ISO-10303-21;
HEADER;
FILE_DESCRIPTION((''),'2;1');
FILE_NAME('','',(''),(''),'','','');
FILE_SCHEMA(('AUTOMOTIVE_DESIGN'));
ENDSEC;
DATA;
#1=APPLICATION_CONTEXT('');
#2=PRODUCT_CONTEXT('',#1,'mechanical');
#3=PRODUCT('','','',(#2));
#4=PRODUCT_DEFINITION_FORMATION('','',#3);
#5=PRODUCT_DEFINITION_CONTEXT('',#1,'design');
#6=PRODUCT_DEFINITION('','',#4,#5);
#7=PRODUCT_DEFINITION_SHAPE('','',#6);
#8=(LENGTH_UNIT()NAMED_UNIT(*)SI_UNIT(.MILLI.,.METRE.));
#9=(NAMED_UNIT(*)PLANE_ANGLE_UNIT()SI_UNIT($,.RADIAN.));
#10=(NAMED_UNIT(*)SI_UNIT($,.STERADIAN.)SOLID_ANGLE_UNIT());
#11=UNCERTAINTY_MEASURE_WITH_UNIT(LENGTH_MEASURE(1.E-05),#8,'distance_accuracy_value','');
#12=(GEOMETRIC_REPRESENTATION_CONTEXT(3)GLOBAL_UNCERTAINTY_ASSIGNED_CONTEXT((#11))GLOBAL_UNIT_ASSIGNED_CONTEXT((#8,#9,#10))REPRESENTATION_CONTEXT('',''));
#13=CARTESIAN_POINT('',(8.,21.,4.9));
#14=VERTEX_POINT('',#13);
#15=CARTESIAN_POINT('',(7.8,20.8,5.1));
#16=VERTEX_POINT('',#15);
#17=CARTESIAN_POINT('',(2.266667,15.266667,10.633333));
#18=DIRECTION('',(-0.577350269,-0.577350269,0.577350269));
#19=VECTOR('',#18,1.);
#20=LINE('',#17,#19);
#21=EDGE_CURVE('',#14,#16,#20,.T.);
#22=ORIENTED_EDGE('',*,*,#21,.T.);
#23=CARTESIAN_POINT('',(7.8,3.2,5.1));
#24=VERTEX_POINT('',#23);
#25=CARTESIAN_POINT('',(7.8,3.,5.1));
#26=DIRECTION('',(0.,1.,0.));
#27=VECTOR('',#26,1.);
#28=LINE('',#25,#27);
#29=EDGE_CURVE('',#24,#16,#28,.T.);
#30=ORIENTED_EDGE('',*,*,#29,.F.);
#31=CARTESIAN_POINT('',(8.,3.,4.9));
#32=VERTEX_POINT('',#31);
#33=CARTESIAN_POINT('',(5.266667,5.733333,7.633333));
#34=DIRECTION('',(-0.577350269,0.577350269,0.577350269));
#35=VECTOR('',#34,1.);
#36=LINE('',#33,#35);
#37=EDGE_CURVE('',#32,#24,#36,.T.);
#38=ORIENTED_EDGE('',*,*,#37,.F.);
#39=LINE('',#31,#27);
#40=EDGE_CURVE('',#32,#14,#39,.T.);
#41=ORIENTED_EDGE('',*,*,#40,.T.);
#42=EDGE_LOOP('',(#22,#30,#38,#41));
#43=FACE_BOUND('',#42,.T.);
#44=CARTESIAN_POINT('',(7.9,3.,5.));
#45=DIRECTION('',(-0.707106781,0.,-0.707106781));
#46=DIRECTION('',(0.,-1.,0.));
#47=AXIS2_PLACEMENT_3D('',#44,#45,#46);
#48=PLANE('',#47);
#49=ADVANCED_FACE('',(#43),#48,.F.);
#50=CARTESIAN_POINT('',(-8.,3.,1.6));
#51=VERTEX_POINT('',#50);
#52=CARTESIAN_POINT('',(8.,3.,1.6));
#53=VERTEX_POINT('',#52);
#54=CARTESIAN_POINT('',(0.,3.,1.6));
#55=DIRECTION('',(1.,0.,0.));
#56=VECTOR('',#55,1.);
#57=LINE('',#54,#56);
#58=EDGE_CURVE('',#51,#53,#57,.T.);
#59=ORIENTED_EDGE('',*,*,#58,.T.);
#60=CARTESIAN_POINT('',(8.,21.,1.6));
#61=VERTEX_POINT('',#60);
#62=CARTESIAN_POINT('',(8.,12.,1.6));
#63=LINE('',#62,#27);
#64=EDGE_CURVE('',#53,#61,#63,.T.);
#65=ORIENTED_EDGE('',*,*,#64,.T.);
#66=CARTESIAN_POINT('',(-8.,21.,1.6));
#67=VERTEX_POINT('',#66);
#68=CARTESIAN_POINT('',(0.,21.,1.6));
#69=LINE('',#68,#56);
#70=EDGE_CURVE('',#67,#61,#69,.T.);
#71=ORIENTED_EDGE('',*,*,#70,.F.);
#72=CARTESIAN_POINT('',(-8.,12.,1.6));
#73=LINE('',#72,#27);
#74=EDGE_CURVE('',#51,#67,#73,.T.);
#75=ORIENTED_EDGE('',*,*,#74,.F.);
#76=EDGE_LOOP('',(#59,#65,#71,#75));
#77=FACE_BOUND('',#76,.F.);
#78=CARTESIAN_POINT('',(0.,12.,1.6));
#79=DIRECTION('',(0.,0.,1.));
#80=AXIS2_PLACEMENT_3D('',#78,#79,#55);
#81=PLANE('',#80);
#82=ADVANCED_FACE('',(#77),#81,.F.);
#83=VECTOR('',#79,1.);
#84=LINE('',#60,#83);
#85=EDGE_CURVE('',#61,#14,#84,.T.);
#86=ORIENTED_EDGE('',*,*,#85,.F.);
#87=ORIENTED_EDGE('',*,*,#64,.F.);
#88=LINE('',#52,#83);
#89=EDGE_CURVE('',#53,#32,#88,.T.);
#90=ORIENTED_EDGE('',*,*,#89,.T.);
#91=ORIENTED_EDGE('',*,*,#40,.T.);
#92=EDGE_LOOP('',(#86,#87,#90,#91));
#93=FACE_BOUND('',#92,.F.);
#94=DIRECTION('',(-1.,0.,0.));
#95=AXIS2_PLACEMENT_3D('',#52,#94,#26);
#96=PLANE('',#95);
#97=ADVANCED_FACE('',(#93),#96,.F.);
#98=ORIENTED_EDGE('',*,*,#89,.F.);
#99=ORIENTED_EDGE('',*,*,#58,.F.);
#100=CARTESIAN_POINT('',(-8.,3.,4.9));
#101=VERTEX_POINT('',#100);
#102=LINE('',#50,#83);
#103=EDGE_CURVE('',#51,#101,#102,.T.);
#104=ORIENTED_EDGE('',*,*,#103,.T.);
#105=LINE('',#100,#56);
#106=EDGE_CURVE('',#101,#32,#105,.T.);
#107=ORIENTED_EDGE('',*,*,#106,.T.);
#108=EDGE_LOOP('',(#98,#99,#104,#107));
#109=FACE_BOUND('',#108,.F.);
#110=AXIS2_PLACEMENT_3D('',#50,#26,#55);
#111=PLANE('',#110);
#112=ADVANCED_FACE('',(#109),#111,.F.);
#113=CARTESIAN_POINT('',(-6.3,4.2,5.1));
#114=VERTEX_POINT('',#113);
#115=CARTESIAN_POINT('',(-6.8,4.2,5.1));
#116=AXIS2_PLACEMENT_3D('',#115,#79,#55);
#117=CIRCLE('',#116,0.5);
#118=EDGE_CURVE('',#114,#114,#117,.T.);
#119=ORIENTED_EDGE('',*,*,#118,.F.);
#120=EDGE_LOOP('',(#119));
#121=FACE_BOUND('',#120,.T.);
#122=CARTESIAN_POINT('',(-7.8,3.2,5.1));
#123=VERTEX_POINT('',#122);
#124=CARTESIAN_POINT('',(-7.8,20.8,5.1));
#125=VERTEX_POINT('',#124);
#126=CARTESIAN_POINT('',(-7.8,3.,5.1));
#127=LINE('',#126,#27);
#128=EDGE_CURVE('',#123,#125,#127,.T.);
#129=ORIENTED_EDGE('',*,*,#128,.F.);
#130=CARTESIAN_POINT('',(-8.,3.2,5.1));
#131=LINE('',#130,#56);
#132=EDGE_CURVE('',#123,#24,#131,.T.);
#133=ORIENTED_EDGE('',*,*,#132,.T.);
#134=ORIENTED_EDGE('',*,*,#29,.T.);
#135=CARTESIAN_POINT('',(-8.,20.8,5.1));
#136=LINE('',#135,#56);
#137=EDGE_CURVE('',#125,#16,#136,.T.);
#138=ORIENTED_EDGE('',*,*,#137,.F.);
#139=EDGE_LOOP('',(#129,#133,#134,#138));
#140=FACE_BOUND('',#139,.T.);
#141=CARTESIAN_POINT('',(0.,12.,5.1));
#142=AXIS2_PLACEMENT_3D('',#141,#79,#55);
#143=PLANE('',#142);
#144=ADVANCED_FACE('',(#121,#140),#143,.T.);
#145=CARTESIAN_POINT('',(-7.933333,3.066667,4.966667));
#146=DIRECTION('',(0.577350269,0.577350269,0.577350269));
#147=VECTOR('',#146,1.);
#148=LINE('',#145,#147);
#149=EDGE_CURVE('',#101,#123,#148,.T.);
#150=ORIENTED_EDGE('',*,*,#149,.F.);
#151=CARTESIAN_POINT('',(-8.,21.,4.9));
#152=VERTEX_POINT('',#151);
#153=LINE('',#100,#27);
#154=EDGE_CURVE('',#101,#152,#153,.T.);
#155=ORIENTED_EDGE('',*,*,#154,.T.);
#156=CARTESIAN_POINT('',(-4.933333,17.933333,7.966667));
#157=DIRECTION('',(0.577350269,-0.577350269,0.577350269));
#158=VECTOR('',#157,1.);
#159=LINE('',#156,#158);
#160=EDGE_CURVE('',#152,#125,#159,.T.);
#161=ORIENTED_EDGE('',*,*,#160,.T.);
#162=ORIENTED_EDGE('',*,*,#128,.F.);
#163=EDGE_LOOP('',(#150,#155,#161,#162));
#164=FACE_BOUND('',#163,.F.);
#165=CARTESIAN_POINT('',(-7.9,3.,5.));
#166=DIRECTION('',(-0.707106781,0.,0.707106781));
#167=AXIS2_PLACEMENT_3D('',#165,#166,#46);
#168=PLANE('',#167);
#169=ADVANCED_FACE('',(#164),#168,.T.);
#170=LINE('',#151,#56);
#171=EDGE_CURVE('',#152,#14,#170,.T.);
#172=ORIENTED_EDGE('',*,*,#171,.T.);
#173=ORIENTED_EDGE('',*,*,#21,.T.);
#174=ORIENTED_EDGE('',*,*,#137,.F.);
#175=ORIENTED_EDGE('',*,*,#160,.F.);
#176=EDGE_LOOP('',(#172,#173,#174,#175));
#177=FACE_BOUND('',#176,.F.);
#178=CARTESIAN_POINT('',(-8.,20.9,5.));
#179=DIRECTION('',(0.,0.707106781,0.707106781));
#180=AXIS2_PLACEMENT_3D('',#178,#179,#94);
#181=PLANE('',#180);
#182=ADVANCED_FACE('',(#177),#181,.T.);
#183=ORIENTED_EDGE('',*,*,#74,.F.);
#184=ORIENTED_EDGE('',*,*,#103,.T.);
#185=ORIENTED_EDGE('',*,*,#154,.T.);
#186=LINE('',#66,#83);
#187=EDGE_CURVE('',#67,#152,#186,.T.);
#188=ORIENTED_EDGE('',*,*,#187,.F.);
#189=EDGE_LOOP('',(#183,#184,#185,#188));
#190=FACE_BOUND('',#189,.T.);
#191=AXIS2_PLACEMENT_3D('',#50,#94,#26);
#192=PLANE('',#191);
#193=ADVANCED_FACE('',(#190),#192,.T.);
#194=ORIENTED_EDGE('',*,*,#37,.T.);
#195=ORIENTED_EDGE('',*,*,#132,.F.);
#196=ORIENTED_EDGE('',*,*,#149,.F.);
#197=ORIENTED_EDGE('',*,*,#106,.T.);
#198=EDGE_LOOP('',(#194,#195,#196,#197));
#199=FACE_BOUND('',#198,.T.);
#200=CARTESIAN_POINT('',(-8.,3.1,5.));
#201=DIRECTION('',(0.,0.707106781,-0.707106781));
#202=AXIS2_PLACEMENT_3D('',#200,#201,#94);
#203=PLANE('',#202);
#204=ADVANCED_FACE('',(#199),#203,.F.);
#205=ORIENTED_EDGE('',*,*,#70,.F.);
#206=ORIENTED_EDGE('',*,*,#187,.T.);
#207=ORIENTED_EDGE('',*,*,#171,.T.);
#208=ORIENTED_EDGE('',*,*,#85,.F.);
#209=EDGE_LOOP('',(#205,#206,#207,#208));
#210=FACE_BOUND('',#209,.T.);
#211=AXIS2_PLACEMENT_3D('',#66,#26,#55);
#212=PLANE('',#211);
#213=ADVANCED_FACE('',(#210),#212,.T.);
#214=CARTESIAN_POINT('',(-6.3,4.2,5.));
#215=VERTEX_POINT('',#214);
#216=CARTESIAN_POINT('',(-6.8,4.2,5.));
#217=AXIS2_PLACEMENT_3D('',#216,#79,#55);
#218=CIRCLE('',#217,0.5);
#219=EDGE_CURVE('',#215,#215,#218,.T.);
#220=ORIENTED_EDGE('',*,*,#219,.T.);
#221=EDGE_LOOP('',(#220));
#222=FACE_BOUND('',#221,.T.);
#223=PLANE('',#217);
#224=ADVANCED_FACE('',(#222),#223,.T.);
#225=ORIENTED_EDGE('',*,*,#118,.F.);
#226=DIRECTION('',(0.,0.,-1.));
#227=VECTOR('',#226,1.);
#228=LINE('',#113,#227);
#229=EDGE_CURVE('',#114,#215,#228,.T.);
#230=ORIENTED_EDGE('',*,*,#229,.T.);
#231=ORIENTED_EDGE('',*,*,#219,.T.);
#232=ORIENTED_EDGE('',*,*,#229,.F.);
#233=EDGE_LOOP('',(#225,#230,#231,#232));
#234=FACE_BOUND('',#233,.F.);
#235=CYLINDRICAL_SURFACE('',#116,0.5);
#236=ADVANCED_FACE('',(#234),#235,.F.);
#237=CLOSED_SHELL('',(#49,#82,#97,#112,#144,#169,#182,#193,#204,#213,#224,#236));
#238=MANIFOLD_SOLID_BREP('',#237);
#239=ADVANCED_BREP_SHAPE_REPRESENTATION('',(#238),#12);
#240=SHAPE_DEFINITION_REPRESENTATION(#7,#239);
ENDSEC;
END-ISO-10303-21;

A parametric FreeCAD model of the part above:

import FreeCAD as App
import Part
import Sketcher

V = App.Vector


def edges_at(feature, points):
    """Names of the edges that pass closest to the given points."""
    edges = feature.Shape.Edges
    near = lambda p: min(range(len(edges)), key=lambda i: edges[i].distToShape(Part.Vertex(*p))[0])
    return sorted({f"Edge{near(p) + 1}" for p in points})

doc = App.newDocument("Part")
body = doc.addObject("PartDesign::Body", "Body")

# Sketch on XY plane
sketch1 = body.newObject("Sketcher::SketchObject", "Sketch")
sketch1.AttachmentSupport = (doc.getObject("XY_Plane"), [""])
sketch1.MapMode = "FlatFace"
sketch1.AttachmentOffset = App.Placement(V(0, 0, 1.6), App.Rotation())
sketch1.addGeometry(Part.LineSegment(V(-8, 21, 0), V(-8, 3, 0)), False)
sketch1.addGeometry(Part.LineSegment(V(-8, 3, 0), V(8, 3, 0)), False)
sketch1.addGeometry(Part.LineSegment(V(8, 3, 0), V(8, 21, 0)), False)
sketch1.addGeometry(Part.LineSegment(V(8, 21, 0), V(-8, 21, 0)), False)
sketch1.addConstraint(Sketcher.Constraint("Coincident", 0, 2, 1, 1))
sketch1.addConstraint(Sketcher.Constraint("Coincident", 1, 2, 2, 1))
sketch1.addConstraint(Sketcher.Constraint("Coincident", 2, 2, 3, 1))
sketch1.addConstraint(Sketcher.Constraint("Coincident", 3, 2, 0, 1))
sketch1.addConstraint(Sketcher.Constraint("Vertical", 0))
sketch1.addConstraint(Sketcher.Constraint("Horizontal", 1))
sketch1.addConstraint(Sketcher.Constraint("Vertical", 2))
sketch1.addConstraint(Sketcher.Constraint("Horizontal", 3))
sketch1.addConstraint(Sketcher.Constraint("DistanceX", 1, 1, 1, 2, 16.0))
sketch1.addConstraint(Sketcher.Constraint("DistanceY", 0, 2, 0, 1, 18.0))
sketch1.addConstraint(Sketcher.Constraint("DistanceX", 0, 2, -1, 1, 8.0))
sketch1.addConstraint(Sketcher.Constraint("DistanceY", -1, 1, 0, 2, 3.0))
pad1 = body.newObject("PartDesign::Pad", "Pad")
pad1.Profile = sketch1
pad1.Length = 3.5
doc.recompute()

chamfer = body.newObject("PartDesign::Chamfer", "Chamfer")
chamfer.Base = (pad1, edges_at(pad1, [
    (0, 21, 5.1),
    (8, 12, 5.1),
    (0, 3, 5.1),
    (-8, 12, 5.1),
]))
chamfer.Size = 0.2

# Sketch on XY plane
sketch2 = body.newObject("Sketcher::SketchObject", "Sketch001")
sketch2.AttachmentSupport = (doc.getObject("XY_Plane"), [""])
sketch2.MapMode = "FlatFace"
sketch2.AttachmentOffset = App.Placement(V(0, 0, 5.1), App.Rotation())
sketch2.addGeometry(Part.Circle(V(-6.8, 4.2, 0), V(0, 0, 1), 0.5), False)
sketch2.addConstraint(Sketcher.Constraint("Diameter", 0, 1.0))
sketch2.addConstraint(Sketcher.Constraint("DistanceX", 0, 3, -1, 1, 6.8))
sketch2.addConstraint(Sketcher.Constraint("DistanceY", -1, 1, 0, 3, 4.2))
pocket1 = body.newObject("PartDesign::Pocket", "Pocket")
pocket1.Profile = sketch2
pocket1.Length = 0.1

doc.recompute()
